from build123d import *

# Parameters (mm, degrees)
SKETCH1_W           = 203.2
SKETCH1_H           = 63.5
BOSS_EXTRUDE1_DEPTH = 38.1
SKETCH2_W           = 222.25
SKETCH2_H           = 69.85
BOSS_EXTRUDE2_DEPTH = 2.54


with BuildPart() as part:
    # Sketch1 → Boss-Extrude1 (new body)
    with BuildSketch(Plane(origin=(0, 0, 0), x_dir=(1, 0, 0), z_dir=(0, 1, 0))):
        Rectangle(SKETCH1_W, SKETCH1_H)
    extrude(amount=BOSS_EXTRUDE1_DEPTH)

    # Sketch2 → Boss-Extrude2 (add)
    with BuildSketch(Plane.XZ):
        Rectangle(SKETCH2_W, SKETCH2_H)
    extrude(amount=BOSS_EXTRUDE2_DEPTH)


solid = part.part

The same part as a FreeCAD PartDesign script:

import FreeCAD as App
import Part
import Sketcher

V = App.Vector
Q = App.Units.Quantity

doc = App.newDocument("Part")
params = doc.addObject("Spreadsheet::Sheet", "Params")
for row, (alias, value) in enumerate([
    ("sketch1_width", "8 in"),
    ("sketch1_height", "2.5 in"),
    ("pad1_length", "1.5 in"),
    ("sketch2_width", "8.75 in"),
    ("sketch2_height", "2.75 in"),
    ("pad2_length", "0.1 in"),
], start=1):
    params.set(f"A{row}", alias)
    params.set(f"B{row}", "=" + value)
    params.setAlias(f"B{row}", alias)

body = doc.addObject("PartDesign::Body", "Body")

# Sketch on XZ plane
sketch1 = doc.addObject("Sketcher::SketchObject", "Sketch")
body.addObject(sketch1)
sketch1.AttachmentSupport = (doc.XZ_Plane, [""])
sketch1.MapMode = "FlatFace"
sketch1.addGeometry([
    Part.LineSegment(V(-102, -32, 0), V(-102, 32, 0)),
    Part.LineSegment(V(-102, 32, 0), V(102, 32, 0)),
    Part.LineSegment(V(102, 32, 0), V(102, -32, 0)),
    Part.LineSegment(V(102, -32, 0), V(-102, -32, 0)),
], False)
sketch1.addConstraint([
    Sketcher.Constraint("Coincident", 0, 2, 1, 1),
    Sketcher.Constraint("Coincident", 1, 2, 2, 1),
    Sketcher.Constraint("Coincident", 2, 2, 3, 1),
    Sketcher.Constraint("Coincident", 3, 2, 0, 1),
    Sketcher.Constraint("Vertical", 0),
    Sketcher.Constraint("Horizontal", 1),
    Sketcher.Constraint("Vertical", 2),
    Sketcher.Constraint("Horizontal", 3),
    Sketcher.Constraint("Symmetric", 0, 2, 2, 2, -1, 1),
    Sketcher.Constraint("DistanceX", 1, 1, 1, 2, Q("8 in")),
    Sketcher.Constraint("DistanceY", 0, 1, 0, 2, Q("2.5 in")),
])
sketch1.setExpression("Constraints[9]", "Params.sketch1_width")
sketch1.setExpression("Constraints[10]", "Params.sketch1_height")
pad1 = doc.addObject("PartDesign::Pad", "Pad")
body.addObject(pad1)
pad1.Profile = sketch1
pad1.setExpression("Length", "Params.pad1_length")
pad1.Reversed = True

# Sketch on XZ plane
sketch2 = doc.addObject("Sketcher::SketchObject", "Sketch001")
body.addObject(sketch2)
sketch2.AttachmentSupport = (doc.XZ_Plane, [""])
sketch2.MapMode = "FlatFace"
sketch2.addGeometry([
    Part.LineSegment(V(-111, 35, 0), V(-111, -35, 0)),
    Part.LineSegment(V(-111, -35, 0), V(111, -35, 0)),
    Part.LineSegment(V(111, -35, 0), V(111, 35, 0)),
    Part.LineSegment(V(111, 35, 0), V(-111, 35, 0)),
], False)
sketch2.addConstraint([
    Sketcher.Constraint("Coincident", 0, 2, 1, 1),
    Sketcher.Constraint("Coincident", 1, 2, 2, 1),
    Sketcher.Constraint("Coincident", 2, 2, 3, 1),
    Sketcher.Constraint("Coincident", 3, 2, 0, 1),
    Sketcher.Constraint("Vertical", 0),
    Sketcher.Constraint("Horizontal", 1),
    Sketcher.Constraint("Vertical", 2),
    Sketcher.Constraint("Horizontal", 3),
    Sketcher.Constraint("Symmetric", 0, 2, 2, 2, -1, 1),
    Sketcher.Constraint("DistanceX", 1, 1, 1, 2, Q("8.75 in")),
    Sketcher.Constraint("DistanceY", 0, 2, 0, 1, Q("2.75 in")),
])
sketch2.setExpression("Constraints[9]", "Params.sketch2_width")
sketch2.setExpression("Constraints[10]", "Params.sketch2_height")
pad2 = doc.addObject("PartDesign::Pad", "Pad001")
body.addObject(pad2)
pad2.Profile = sketch2
pad2.setExpression("Length", "Params.pad2_length")

doc.recompute()
